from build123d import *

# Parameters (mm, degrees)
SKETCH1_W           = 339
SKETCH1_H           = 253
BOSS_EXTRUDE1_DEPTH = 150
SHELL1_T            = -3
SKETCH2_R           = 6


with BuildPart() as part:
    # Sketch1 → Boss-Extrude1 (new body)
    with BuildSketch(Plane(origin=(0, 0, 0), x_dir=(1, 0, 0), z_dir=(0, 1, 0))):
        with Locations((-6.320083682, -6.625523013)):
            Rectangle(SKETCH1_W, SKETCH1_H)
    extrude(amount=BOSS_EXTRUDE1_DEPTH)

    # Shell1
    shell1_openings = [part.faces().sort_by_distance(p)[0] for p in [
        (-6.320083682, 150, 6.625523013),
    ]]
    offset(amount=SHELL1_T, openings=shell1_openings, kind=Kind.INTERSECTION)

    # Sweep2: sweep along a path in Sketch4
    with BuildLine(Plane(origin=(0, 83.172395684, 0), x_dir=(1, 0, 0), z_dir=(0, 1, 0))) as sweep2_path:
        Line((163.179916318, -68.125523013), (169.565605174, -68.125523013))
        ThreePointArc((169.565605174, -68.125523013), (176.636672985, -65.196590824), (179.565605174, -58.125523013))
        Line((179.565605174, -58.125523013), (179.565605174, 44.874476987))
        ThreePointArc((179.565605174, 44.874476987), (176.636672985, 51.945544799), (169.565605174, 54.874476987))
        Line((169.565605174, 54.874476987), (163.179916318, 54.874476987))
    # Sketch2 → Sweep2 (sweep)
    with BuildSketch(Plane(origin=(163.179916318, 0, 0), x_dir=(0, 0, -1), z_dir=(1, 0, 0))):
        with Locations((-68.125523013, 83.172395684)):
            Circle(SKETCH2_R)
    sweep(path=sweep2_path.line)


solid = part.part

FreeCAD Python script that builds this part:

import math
import FreeCAD as App
import Part
import Sketcher
Q = App.Units.Quantity


def faces_at(feature, points):
    """Names of the faces that lie closest to the given points."""
    faces = feature.Shape.Faces
    near = lambda p: min(range(len(faces)), key=lambda i: faces[i].distToShape(Part.Vertex(*p))[0])
    return sorted({f"Face{near(p) + 1}" for p in points})

doc = App.newDocument("Part")
params = doc.addObject("Spreadsheet::Sheet", "Params")
for row, (alias, value) in enumerate([
    ("sketch1_width", "339 mm"),
    ("sketch1_height", "253 mm"),
    ("pad1_length", "150 mm"),
    ("thickness_wall", "3 mm"),
    ("sketch2_diameter", "12 mm"),
    ("sketch3_radius", "10 mm"),
    ("sketch3_height", "103 mm"),
], start=1):
    params.set(f"A{row}", alias)
    params.set(f"B{row}", "=" + value)
    params.setAlias(f"B{row}", alias)

body = doc.addObject("PartDesign::Body", "Body")

sketch1 = body.newObject("Sketcher::SketchObject", "Sketch")
sketch1.AttachmentSupport = (doc.getObject("XZ_Plane"), [""])
sketch1.MapMode = "FlatFace"
sketch1.addGeometry([
    Part.LineSegment(App.Vector(-176, -120, 0), App.Vector(-176, 133, 0)),
    Part.LineSegment(App.Vector(-176, 133, 0), App.Vector(163, 133, 0)),
    Part.LineSegment(App.Vector(163, 133, 0), App.Vector(163, -120, 0)),
    Part.LineSegment(App.Vector(163, -120, 0), App.Vector(-176, -120, 0)),
], False)
sketch1.addConstraint([
    Sketcher.Constraint("Coincident", 0, 2, 1, 1),
    Sketcher.Constraint("Coincident", 1, 2, 2, 1),
    Sketcher.Constraint("Coincident", 2, 2, 3, 1),
    Sketcher.Constraint("Coincident", 3, 2, 0, 1),
    Sketcher.Constraint("Vertical", 0),
    Sketcher.Constraint("Horizontal", 1),
    Sketcher.Constraint("Vertical", 2),
    Sketcher.Constraint("Horizontal", 3),
    Sketcher.Constraint("DistanceX", 1, 1, 1, 2, Q("339 mm")),
    Sketcher.Constraint("DistanceY", 0, 1, 0, 2, Q("253 mm")),
    Sketcher.Constraint("DistanceX", 0, 2, -1, 1, Q("175.820084 mm")),
    Sketcher.Constraint("DistanceY", -1, 1, 0, 2, Q("133.125523 mm")),
])
sketch1.setExpression("Constraints[8]", "Params.sketch1_width")
sketch1.setExpression("Constraints[9]", "Params.sketch1_height")
pad1 = body.newObject("PartDesign::Pad", "Pad")
pad1.Profile = sketch1
pad1.setExpression("Length", "Params.pad1_length")
pad1.Reversed = True
doc.recompute()

thickness = body.newObject("PartDesign::Thickness", "Thickness")
thickness.Base = (pad1, faces_at(pad1, [(-6.32, 150, 6.626)]))
thickness.setExpression("Value", "Params.thickness_wall")
thickness.Reversed = True
thickness.Join = "Intersection"

sketch2 = body.newObject("Sketcher::SketchObject", "Sketch001")
sketch2.AttachmentSupport = (doc.getObject("YZ_Plane"), [""])
sketch2.MapMode = "FlatFace"
sketch2.AttachmentOffset = App.Placement(App.Vector(0, 0, 163.179916), App.Rotation())
sketch2.addGeometry(Part.Circle(App.Vector(83, 68, 0), App.Vector(0, 0, 1), 6), False)
sketch2.addConstraint([
    Sketcher.Constraint("Diameter", 0, Q("12 mm")),
    Sketcher.Constraint("DistanceX", -1, 1, 0, 3, Q("83.172396 mm")),
    Sketcher.Constraint("DistanceY", -1, 1, 0, 3, Q("68.125523 mm")),
])
sketch2.setExpression("Constraints[0]", "Params.sketch2_diameter")

sketch3 = body.newObject("Sketcher::SketchObject", "Sketch002")
sketch3.AttachmentSupport = (doc.getObject("XZ_Plane"), [""])
sketch3.MapMode = "FlatFace"
sketch3.AttachmentOffset = App.Placement(App.Vector(0, 0, -83.172396), App.Rotation())
sketch3.addGeometry([
    Part.LineSegment(App.Vector(163, 68, 0), App.Vector(170, 68, 0)),
    Part.ArcOfCircle(Part.Circle(App.Vector(170, 58, 0), App.Vector(0, 0, 1), 10), math.radians(0), math.radians(90)),
    Part.LineSegment(App.Vector(180, 58, 0), App.Vector(180, -45, 0)),
    Part.ArcOfCircle(Part.Circle(App.Vector(170, -45, 0), App.Vector(0, 0, 1), 10), math.radians(-90), math.radians(0)),
    Part.LineSegment(App.Vector(170, -55, 0), App.Vector(163, -55, 0)),
], False)
sketch3.addConstraint([
    Sketcher.Constraint("Tangent", 0, 2, 1, 2),
    Sketcher.Constraint("Tangent", 1, 1, 2, 1),
    Sketcher.Constraint("Tangent", 2, 2, 3, 2),
    Sketcher.Constraint("Tangent", 3, 1, 4, 1),
    Sketcher.Constraint("Horizontal", 0),
    Sketcher.Constraint("Vertical", 2),
    Sketcher.Constraint("Horizontal", 4),
    Sketcher.Constraint("Equal", 1, 3),
    Sketcher.Constraint("Vertical", 0, 1, 4, 2),
    Sketcher.Constraint("Radius", 1, Q("10 mm")),
    Sketcher.Constraint("DistanceY", 2, 2, 2, 1, Q("103 mm")),
    Sketcher.Constraint("DistanceX", 0, 1, 0, 2, Q("6.385689 mm")),
    Sketcher.Constraint("DistanceX", -1, 1, 1, 3, Q("169.565605 mm")),
    Sketcher.Constraint("DistanceY", -1, 1, 1, 3, Q("58.125523 mm")),
])
sketch3.setExpression("Constraints[9]", "Params.sketch3_radius")
sketch3.setExpression("Constraints[10]", "Params.sketch3_height")
doc.recompute()

additivepipe = body.newObject("PartDesign::AdditivePipe", "AdditivePipe")
additivepipe.Profile = sketch2
additivepipe.Spine = (sketch3, ["Edge1", "Edge2", "Edge3", "Edge4", "Edge5"])

doc.recompute()
